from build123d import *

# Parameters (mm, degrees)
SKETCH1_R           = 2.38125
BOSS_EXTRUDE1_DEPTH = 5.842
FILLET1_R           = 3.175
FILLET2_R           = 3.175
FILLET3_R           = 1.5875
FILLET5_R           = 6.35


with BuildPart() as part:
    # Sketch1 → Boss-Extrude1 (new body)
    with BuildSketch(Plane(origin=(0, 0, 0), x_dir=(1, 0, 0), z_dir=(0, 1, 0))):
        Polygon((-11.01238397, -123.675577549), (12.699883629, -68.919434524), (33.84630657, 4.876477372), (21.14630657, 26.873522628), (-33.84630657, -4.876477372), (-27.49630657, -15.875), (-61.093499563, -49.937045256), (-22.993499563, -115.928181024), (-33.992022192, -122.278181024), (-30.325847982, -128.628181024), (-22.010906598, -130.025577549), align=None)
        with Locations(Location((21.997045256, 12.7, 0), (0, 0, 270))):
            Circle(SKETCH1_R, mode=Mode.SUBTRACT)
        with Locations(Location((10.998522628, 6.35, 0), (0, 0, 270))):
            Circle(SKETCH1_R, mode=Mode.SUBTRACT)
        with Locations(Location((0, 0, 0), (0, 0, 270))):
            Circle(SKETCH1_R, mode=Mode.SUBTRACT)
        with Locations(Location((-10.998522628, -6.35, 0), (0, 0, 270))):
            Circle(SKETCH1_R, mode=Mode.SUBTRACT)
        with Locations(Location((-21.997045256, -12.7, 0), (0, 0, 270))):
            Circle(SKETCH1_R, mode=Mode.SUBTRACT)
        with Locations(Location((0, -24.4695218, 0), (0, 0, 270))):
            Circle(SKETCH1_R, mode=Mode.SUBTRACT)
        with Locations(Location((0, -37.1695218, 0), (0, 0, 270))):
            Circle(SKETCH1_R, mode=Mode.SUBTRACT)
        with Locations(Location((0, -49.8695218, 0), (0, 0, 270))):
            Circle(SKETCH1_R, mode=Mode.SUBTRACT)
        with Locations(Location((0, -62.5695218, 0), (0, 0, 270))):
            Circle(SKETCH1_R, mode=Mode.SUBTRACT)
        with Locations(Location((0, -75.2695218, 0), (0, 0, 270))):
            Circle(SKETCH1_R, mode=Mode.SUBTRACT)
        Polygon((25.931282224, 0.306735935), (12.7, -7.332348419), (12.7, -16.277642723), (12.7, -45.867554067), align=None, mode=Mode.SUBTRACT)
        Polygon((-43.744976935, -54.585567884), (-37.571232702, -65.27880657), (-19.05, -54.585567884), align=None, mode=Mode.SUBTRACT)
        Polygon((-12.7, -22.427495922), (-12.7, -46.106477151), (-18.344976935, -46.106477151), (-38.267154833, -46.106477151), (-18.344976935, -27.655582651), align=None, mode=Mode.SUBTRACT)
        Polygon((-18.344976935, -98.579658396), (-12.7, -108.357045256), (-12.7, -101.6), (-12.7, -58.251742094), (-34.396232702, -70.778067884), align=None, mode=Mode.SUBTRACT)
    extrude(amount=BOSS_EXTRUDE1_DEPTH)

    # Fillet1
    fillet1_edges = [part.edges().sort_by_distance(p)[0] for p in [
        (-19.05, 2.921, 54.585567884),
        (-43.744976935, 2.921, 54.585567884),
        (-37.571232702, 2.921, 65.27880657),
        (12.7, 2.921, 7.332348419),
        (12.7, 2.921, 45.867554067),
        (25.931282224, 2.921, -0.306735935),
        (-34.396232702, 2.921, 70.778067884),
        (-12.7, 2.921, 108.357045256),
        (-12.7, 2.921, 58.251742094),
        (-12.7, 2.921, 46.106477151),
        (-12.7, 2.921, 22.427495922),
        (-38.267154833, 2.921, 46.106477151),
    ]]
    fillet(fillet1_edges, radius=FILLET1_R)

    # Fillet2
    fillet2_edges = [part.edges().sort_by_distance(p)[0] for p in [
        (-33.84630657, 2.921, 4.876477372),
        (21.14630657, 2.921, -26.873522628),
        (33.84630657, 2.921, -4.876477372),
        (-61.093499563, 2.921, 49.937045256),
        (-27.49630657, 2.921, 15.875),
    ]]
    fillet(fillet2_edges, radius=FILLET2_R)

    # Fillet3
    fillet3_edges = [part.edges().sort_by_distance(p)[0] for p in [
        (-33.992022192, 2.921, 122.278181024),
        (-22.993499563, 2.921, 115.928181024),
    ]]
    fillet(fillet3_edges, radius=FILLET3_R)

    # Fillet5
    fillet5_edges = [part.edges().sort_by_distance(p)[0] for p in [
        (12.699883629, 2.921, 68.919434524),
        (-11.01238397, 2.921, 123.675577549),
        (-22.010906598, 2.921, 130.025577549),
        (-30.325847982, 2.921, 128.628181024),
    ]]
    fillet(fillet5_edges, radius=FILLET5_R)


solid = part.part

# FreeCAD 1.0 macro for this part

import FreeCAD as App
import Part
import Sketcher
Q = App.Units.Quantity


def edges_at(feature, points):
    """Names of the edges that pass closest to the given points."""
    edges = feature.Shape.Edges
    near = lambda p: min(range(len(edges)), key=lambda i: edges[i].distToShape(Part.Vertex(*p))[0])
    return sorted({f"Edge{near(p) + 1}" for p in points})


def add_polygon(sketch, points):
    """Adds a closed chain of lines whose ends are joined by coincident constraints."""
    first, n = sketch.GeometryCount, len(points)
    for a, b in zip(points, points[1:] + points[:1]):
        sketch.addGeometry(Part.LineSegment(App.Vector(*a, 0), App.Vector(*b, 0)), False)
    for i in range(n):
        sketch.addConstraint(Sketcher.Constraint("Coincident", first + i, 2, first + (i + 1) % n, 1))

doc = App.newDocument("Part")
body = doc.addObject("PartDesign::Body", "Body")

# Sketch on XZ plane
sketch1 = body.newObject("Sketcher::SketchObject", "Sketch")
sketch1.AttachmentSupport = (doc.getObject("XZ_Plane"), [""])
sketch1.MapMode = "FlatFace"
add_polygon(sketch1, [(-11.012384, 123.675578), (12.699884, 68.919435), (33.846307, -4.876477), (21.146307, -26.873523), (-33.846307, 4.876477), (-27.496307, 15.875), (-61.0935, 49.937045), (-22.9935, 115.928181), (-33.992022, 122.278181), (-30.325848, 128.628181), (-22.010907, 130.025578)])  # lines 0-10
add_polygon(sketch1, [(-12.7, 108.357045), (-18.344977, 98.579658), (-34.396233, 70.778068), (-12.7, 58.251742)])  # lines 11-14
add_polygon(sketch1, [(-37.571233, 65.278807), (-43.744977, 54.585568), (-19.05, 54.585568)])  # lines 15-17
sketch1.addGeometry(Part.Circle(App.Vector(0, 75.269522, 0), App.Vector(0, 0, 1), 2.38125), False)  # 18
sketch1.addGeometry(Part.Circle(App.Vector(0, 62.569522, 0), App.Vector(0, 0, 1), 2.38125), False)  # 19
sketch1.addGeometry(Part.Circle(App.Vector(0, 49.869522, 0), App.Vector(0, 0, 1), 2.38125), False)  # 20
add_polygon(sketch1, [(-18.344977, 27.655583), (-12.7, 22.427496), (-12.7, 46.106477), (-38.267155, 46.106477)])  # lines 21-24
sketch1.addGeometry(Part.Circle(App.Vector(-21.997045, 12.7, 0), App.Vector(0, 0, 1), 2.38125), False)  # 25
sketch1.addGeometry(Part.Circle(App.Vector(-10.998523, 6.35, 0), App.Vector(0, 0, 1), 2.38125), False)  # 26
sketch1.addGeometry(Part.Circle(App.Vector(0, 37.169522, 0), App.Vector(0, 0, 1), 2.38125), False)  # 27
sketch1.addGeometry(Part.Circle(App.Vector(0, 24.469522, 0), App.Vector(0, 0, 1), 2.38125), False)  # 28
add_polygon(sketch1, [(12.7, 7.332348), (25.931282, -0.306736), (12.7, 45.867554)])  # lines 29-31
sketch1.addGeometry(Part.Circle(App.Vector(0, 0, 0), App.Vector(0, 0, 1), 2.38125), False)  # 32
sketch1.addGeometry(Part.Circle(App.Vector(10.998523, -6.35, 0), App.Vector(0, 0, 1), 2.38125), False)  # 33
sketch1.addGeometry(Part.Circle(App.Vector(21.997045, -12.7, 0), App.Vector(0, 0, 1), 2.38125), False)  # 34
sketch1.addConstraint(Sketcher.Constraint("Vertical", 14))
sketch1.addConstraint(Sketcher.Constraint("Horizontal", 16))
sketch1.addConstraint(Sketcher.Constraint("Vertical", 22))
sketch1.addConstraint(Sketcher.Constraint("Horizontal", 23))
sketch1.addConstraint(Sketcher.Constraint("Vertical", 31))
sketch1.addConstraint(Sketcher.Constraint("Coincident", 32, 3, -1, 1))
sketch1.addConstraint(Sketcher.Constraint("PointOnObject", 18, 3, -2))
sketch1.addConstraint(Sketcher.Constraint("PointOnObject", 19, 3, -2))
sketch1.addConstraint(Sketcher.Constraint("PointOnObject", 20, 3, -2))
sketch1.addConstraint(Sketcher.Constraint("PointOnObject", 27, 3, -2))
sketch1.addConstraint(Sketcher.Constraint("PointOnObject", 28, 3, -2))
sketch1.addConstraint(Sketcher.Constraint("Distance", 2, Q("1 in")))
sketch1.addConstraint(Sketcher.Constraint("Distance", 6, Q("3 in")))
sketch1.addConstraint(Sketcher.Constraint("Diameter", 18, Q("0.1875 in")))
sketch1.addConstraint(Sketcher.Constraint("Diameter", 19, Q("0.1875 in")))
sketch1.addConstraint(Sketcher.Constraint("Diameter", 20, Q("0.1875 in")))
sketch1.addConstraint(Sketcher.Constraint("Diameter", 25, Q("0.1875 in")))
sketch1.addConstraint(Sketcher.Constraint("Diameter", 26, Q("0.1875 in")))
sketch1.addConstraint(Sketcher.Constraint("Diameter", 27, Q("0.1875 in")))
sketch1.addConstraint(Sketcher.Constraint("Diameter", 28, Q("0.1875 in")))
sketch1.addConstraint(Sketcher.Constraint("Diameter", 32, Q("0.1875 in")))
sketch1.addConstraint(Sketcher.Constraint("Diameter", 33, Q("0.1875 in")))
sketch1.addConstraint(Sketcher.Constraint("Diameter", 34, Q("0.1875 in")))
sketch1.addConstraint(Sketcher.Constraint("DistanceY", 20, 3, 18, 3, Q("1 in")))
sketch1.addConstraint(Sketcher.Constraint("DistanceY", 27, 3, 19, 3, Q("1 in")))
sketch1.addConstraint(Sketcher.Constraint("DistanceY", 28, 3, 20, 3, Q("1 in")))
sketch1.addConstraint(Sketcher.Constraint("DistanceY", 34, 3, 25, 3, Q("1 in")))
sketch1.addConstraint(Sketcher.Constraint("Distance", 3, Q("2.5 in")))
sketch1.addConstraint(Sketcher.Constraint("Distance", 4, Q("0.5 in")))
sketch1.addConstraint(Sketcher.Constraint("Distance", 7, Q("0.5 in")))
sketch1.addConstraint(Sketcher.Constraint("Distance", 10, Q("0.5 in")))
sketch1.addConstraint(Sketcher.Constraint("DistanceY", -1, 1, 25, 3, Q("0.5 in")))
sketch1.addConstraint(Sketcher.Constraint("DistanceX", 13, 2, -1, 1, Q("0.5 in")))
sketch1.addConstraint(Sketcher.Constraint("DistanceX", 21, 2, -1, 1, Q("0.5 in")))
sketch1.addConstraint(Sketcher.Constraint("DistanceX", -1, 1, 30, 2, Q("0.5 in")))
sketch1.addConstraint(Sketcher.Constraint("DistanceY", 19, 3, 18, 3, Q("0.5 in")))
sketch1.addConstraint(Sketcher.Constraint("DistanceY", 33, 3, 26, 3, Q("0.5 in")))
sketch1.addConstraint(Sketcher.Constraint("DistanceX", 2, 2, 1, 2, Q("0.5 in")))
sketch1.addConstraint(Sketcher.Constraint("DistanceX", 5, 2, 6, 2, Q("1.5 in")))
sketch1.addConstraint(Sketcher.Constraint("DistanceY", 6, 2, 8, 2, Q("0.5 in")))
sketch1.addConstraint(Sketcher.Constraint("DistanceY", -1, 1, 26, 3, Q("0.25 in")))
sketch1.addConstraint(Sketcher.Constraint("DistanceX", 16, 2, -1, 1, Q("0.75 in")))
sketch1.addConstraint(Sketcher.Constraint("DistanceX", 3, 2, 4, 2, Q("0.25 in")))
sketch1.addConstraint(Sketcher.Constraint("DistanceY", 6, 2, 7, 2, Q("0.25 in")))
sketch1.addConstraint(Sketcher.Constraint("DistanceY", 10, 2, 9, 2, Q("0.25 in")))
sketch1.addConstraint(Sketcher.Constraint("DistanceY", -1, 1, 4, 2, Q("0.625 in")))
sketch1.addConstraint(Sketcher.Constraint("DistanceX", 17, 2, 12, 2, Q("0.125 in")))
sketch1.addConstraint(Sketcher.Constraint("Distance", 5, Q("1.8835998 in")))
sketch1.addConstraint(Sketcher.Constraint("DistanceY", 15, 2, 12, 2, Q("0.6375 in")))
sketch1.addConstraint(Sketcher.Constraint("DistanceY", 22, 1, 22, 2, Q("23.678981 mm")))
sketch1.addConstraint(Sketcher.Constraint("DistanceX", 5, 2, -1, 1, Q("61.0935 mm")))
sketch1.addConstraint(Sketcher.Constraint("DistanceY", 1, 2, 28, 3, Q("29.345999 mm")))
sketch1.addConstraint(Sketcher.Constraint("Distance", 1, Q("76.765929 mm")))
sketch1.addConstraint(Sketcher.Constraint("Distance", 8, Q("7.332348 mm")))
sketch1.addConstraint(Sketcher.Constraint("Distance", 12, Q("32.102512 mm")))
sketch1.addConstraint(Sketcher.Constraint("Distance", 13, Q("25.052652 mm")))
sketch1.addConstraint(Sketcher.Constraint("Distance", 15, Q("12.347488 mm")))
sketch1.addConstraint(Sketcher.Constraint("Distance", 29, Q("15.278169 mm")))
sketch1.addConstraint(Sketcher.Constraint("DistanceX", 16, 1, 16, 2, Q("24.694977 mm")))
sketch1.addConstraint(Sketcher.Constraint("DistanceX", 23, 2, 23, 1, Q("25.567155 mm")))
sketch1.addConstraint(Sketcher.Constraint("DistanceY", 14, 1, 14, 2, Q("50.105303 mm")))
sketch1.addConstraint(Sketcher.Constraint("DistanceY", 31, 2, 31, 1, Q("38.535206 mm")))
sketch1.addConstraint(Sketcher.Constraint("DistanceY", -1, 1, 18, 3, Q("75.269522 mm")))
sketch1.addConstraint(Sketcher.Constraint("DistanceY", -1, 1, 6, 2, Q("115.928181 mm")))
sketch1.addConstraint(Sketcher.Constraint("DistanceY", -1, 1, 11, 2, Q("98.579658 mm")))
sketch1.addConstraint(Sketcher.Constraint("DistanceY", -1, 1, 31, 2, Q("7.332348 mm")))
sketch1.addConstraint(Sketcher.Constraint("DistanceX", 25, 3, 34, 3, Q("43.994091 mm")))
sketch1.addConstraint(Sketcher.Constraint("DistanceX", 34, 3, 1, 2, Q("11.849261 mm")))
sketch1.addConstraint(Sketcher.Constraint("DistanceX", 26, 3, 1, 2, Q("44.844829 mm")))
sketch1.addConstraint(Sketcher.Constraint("DistanceX", 3, 2, 33, 3, Q("44.844829 mm")))
sketch1.addConstraint(Sketcher.Constraint("DistanceX", 8, 2, 0, 2, Q("43.025732 mm")))
sketch1.addConstraint(Sketcher.Constraint("DistanceX", 8, 2, 9, 2, Q("8.314941 mm")))
sketch1.addConstraint(Sketcher.Constraint("DistanceY", 11, 2, 10, 2, Q("25.095919 mm")))
sketch1.addConstraint(Sketcher.Constraint("DistanceX", 9, 2, 11, 2, Q("3.66593 mm")))
sketch1.addConstraint(Sketcher.Constraint("DistanceY", 12, 2, 11, 2, Q("27.801591 mm")))
sketch1.addConstraint(Sketcher.Constraint("DistanceY", 22, 2, 16, 2, Q("8.479091 mm")))
sketch1.addConstraint(Sketcher.Constraint("DistanceX", 4, 2, 24, 2, Q("9.15133 mm")))
sketch1.addConstraint(Sketcher.Constraint("DistanceY", 28, 3, 24, 2, Q("3.186061 mm")))
sketch1.addConstraint(Sketcher.Constraint("DistanceY", 1, 2, 29, 2, Q("4.569741 mm")))
pad1 = body.newObject("PartDesign::Pad", "Pad")
pad1.Profile = sketch1
pad1.Length = Q("0.23 in")
pad1.Reversed = True
doc.recompute()

fillet = body.newObject("PartDesign::Fillet", "Fillet")
fillet.Base = (pad1, edges_at(pad1, [
    (-19.05, 2.921, 54.586),
    (-43.745, 2.921, 54.586),
    (-37.571, 2.921, 65.279),
    (12.7, 2.921, 7.332),
    (12.7, 2.921, 45.868),
    (25.931, 2.921, -0.307),
    (-34.396, 2.921, 70.778),
    (-12.7, 2.921, 108.357),
    (-12.7, 2.921, 58.252),
    (-12.7, 2.921, 46.106),
    (-12.7, 2.921, 22.427),
    (-38.267, 2.921, 46.106),
]))
fillet.Radius = Q("0.125 in")
doc.recompute()

fillet2 = body.newObject("PartDesign::Fillet", "Fillet001")
fillet2.Base = (fillet, edges_at(fillet, [
    (-33.846, 2.921, 4.876),
    (21.146, 2.921, -26.874),
    (33.846, 2.921, -4.876),
    (-61.093, 2.921, 49.937),
    (-27.496, 2.921, 15.875),
]))
fillet2.Radius = Q("0.125 in")
doc.recompute()

fillet3 = body.newObject("PartDesign::Fillet", "Fillet002")
fillet3.Base = (fillet2, edges_at(fillet2, [(-33.992, 2.921, 122.278), (-22.993, 2.921, 115.928)]))
fillet3.Radius = Q("0.0625 in")
doc.recompute()

fillet4 = body.newObject("PartDesign::Fillet", "Fillet003")
fillet4.Base = (fillet3, edges_at(fillet3, [
    (12.7, 2.921, 68.919),
    (-11.012, 2.921, 123.676),
    (-22.011, 2.921, 130.026),
    (-30.326, 2.921, 128.628),
]))
fillet4.Radius = Q("0.25 in")

doc.recompute()
